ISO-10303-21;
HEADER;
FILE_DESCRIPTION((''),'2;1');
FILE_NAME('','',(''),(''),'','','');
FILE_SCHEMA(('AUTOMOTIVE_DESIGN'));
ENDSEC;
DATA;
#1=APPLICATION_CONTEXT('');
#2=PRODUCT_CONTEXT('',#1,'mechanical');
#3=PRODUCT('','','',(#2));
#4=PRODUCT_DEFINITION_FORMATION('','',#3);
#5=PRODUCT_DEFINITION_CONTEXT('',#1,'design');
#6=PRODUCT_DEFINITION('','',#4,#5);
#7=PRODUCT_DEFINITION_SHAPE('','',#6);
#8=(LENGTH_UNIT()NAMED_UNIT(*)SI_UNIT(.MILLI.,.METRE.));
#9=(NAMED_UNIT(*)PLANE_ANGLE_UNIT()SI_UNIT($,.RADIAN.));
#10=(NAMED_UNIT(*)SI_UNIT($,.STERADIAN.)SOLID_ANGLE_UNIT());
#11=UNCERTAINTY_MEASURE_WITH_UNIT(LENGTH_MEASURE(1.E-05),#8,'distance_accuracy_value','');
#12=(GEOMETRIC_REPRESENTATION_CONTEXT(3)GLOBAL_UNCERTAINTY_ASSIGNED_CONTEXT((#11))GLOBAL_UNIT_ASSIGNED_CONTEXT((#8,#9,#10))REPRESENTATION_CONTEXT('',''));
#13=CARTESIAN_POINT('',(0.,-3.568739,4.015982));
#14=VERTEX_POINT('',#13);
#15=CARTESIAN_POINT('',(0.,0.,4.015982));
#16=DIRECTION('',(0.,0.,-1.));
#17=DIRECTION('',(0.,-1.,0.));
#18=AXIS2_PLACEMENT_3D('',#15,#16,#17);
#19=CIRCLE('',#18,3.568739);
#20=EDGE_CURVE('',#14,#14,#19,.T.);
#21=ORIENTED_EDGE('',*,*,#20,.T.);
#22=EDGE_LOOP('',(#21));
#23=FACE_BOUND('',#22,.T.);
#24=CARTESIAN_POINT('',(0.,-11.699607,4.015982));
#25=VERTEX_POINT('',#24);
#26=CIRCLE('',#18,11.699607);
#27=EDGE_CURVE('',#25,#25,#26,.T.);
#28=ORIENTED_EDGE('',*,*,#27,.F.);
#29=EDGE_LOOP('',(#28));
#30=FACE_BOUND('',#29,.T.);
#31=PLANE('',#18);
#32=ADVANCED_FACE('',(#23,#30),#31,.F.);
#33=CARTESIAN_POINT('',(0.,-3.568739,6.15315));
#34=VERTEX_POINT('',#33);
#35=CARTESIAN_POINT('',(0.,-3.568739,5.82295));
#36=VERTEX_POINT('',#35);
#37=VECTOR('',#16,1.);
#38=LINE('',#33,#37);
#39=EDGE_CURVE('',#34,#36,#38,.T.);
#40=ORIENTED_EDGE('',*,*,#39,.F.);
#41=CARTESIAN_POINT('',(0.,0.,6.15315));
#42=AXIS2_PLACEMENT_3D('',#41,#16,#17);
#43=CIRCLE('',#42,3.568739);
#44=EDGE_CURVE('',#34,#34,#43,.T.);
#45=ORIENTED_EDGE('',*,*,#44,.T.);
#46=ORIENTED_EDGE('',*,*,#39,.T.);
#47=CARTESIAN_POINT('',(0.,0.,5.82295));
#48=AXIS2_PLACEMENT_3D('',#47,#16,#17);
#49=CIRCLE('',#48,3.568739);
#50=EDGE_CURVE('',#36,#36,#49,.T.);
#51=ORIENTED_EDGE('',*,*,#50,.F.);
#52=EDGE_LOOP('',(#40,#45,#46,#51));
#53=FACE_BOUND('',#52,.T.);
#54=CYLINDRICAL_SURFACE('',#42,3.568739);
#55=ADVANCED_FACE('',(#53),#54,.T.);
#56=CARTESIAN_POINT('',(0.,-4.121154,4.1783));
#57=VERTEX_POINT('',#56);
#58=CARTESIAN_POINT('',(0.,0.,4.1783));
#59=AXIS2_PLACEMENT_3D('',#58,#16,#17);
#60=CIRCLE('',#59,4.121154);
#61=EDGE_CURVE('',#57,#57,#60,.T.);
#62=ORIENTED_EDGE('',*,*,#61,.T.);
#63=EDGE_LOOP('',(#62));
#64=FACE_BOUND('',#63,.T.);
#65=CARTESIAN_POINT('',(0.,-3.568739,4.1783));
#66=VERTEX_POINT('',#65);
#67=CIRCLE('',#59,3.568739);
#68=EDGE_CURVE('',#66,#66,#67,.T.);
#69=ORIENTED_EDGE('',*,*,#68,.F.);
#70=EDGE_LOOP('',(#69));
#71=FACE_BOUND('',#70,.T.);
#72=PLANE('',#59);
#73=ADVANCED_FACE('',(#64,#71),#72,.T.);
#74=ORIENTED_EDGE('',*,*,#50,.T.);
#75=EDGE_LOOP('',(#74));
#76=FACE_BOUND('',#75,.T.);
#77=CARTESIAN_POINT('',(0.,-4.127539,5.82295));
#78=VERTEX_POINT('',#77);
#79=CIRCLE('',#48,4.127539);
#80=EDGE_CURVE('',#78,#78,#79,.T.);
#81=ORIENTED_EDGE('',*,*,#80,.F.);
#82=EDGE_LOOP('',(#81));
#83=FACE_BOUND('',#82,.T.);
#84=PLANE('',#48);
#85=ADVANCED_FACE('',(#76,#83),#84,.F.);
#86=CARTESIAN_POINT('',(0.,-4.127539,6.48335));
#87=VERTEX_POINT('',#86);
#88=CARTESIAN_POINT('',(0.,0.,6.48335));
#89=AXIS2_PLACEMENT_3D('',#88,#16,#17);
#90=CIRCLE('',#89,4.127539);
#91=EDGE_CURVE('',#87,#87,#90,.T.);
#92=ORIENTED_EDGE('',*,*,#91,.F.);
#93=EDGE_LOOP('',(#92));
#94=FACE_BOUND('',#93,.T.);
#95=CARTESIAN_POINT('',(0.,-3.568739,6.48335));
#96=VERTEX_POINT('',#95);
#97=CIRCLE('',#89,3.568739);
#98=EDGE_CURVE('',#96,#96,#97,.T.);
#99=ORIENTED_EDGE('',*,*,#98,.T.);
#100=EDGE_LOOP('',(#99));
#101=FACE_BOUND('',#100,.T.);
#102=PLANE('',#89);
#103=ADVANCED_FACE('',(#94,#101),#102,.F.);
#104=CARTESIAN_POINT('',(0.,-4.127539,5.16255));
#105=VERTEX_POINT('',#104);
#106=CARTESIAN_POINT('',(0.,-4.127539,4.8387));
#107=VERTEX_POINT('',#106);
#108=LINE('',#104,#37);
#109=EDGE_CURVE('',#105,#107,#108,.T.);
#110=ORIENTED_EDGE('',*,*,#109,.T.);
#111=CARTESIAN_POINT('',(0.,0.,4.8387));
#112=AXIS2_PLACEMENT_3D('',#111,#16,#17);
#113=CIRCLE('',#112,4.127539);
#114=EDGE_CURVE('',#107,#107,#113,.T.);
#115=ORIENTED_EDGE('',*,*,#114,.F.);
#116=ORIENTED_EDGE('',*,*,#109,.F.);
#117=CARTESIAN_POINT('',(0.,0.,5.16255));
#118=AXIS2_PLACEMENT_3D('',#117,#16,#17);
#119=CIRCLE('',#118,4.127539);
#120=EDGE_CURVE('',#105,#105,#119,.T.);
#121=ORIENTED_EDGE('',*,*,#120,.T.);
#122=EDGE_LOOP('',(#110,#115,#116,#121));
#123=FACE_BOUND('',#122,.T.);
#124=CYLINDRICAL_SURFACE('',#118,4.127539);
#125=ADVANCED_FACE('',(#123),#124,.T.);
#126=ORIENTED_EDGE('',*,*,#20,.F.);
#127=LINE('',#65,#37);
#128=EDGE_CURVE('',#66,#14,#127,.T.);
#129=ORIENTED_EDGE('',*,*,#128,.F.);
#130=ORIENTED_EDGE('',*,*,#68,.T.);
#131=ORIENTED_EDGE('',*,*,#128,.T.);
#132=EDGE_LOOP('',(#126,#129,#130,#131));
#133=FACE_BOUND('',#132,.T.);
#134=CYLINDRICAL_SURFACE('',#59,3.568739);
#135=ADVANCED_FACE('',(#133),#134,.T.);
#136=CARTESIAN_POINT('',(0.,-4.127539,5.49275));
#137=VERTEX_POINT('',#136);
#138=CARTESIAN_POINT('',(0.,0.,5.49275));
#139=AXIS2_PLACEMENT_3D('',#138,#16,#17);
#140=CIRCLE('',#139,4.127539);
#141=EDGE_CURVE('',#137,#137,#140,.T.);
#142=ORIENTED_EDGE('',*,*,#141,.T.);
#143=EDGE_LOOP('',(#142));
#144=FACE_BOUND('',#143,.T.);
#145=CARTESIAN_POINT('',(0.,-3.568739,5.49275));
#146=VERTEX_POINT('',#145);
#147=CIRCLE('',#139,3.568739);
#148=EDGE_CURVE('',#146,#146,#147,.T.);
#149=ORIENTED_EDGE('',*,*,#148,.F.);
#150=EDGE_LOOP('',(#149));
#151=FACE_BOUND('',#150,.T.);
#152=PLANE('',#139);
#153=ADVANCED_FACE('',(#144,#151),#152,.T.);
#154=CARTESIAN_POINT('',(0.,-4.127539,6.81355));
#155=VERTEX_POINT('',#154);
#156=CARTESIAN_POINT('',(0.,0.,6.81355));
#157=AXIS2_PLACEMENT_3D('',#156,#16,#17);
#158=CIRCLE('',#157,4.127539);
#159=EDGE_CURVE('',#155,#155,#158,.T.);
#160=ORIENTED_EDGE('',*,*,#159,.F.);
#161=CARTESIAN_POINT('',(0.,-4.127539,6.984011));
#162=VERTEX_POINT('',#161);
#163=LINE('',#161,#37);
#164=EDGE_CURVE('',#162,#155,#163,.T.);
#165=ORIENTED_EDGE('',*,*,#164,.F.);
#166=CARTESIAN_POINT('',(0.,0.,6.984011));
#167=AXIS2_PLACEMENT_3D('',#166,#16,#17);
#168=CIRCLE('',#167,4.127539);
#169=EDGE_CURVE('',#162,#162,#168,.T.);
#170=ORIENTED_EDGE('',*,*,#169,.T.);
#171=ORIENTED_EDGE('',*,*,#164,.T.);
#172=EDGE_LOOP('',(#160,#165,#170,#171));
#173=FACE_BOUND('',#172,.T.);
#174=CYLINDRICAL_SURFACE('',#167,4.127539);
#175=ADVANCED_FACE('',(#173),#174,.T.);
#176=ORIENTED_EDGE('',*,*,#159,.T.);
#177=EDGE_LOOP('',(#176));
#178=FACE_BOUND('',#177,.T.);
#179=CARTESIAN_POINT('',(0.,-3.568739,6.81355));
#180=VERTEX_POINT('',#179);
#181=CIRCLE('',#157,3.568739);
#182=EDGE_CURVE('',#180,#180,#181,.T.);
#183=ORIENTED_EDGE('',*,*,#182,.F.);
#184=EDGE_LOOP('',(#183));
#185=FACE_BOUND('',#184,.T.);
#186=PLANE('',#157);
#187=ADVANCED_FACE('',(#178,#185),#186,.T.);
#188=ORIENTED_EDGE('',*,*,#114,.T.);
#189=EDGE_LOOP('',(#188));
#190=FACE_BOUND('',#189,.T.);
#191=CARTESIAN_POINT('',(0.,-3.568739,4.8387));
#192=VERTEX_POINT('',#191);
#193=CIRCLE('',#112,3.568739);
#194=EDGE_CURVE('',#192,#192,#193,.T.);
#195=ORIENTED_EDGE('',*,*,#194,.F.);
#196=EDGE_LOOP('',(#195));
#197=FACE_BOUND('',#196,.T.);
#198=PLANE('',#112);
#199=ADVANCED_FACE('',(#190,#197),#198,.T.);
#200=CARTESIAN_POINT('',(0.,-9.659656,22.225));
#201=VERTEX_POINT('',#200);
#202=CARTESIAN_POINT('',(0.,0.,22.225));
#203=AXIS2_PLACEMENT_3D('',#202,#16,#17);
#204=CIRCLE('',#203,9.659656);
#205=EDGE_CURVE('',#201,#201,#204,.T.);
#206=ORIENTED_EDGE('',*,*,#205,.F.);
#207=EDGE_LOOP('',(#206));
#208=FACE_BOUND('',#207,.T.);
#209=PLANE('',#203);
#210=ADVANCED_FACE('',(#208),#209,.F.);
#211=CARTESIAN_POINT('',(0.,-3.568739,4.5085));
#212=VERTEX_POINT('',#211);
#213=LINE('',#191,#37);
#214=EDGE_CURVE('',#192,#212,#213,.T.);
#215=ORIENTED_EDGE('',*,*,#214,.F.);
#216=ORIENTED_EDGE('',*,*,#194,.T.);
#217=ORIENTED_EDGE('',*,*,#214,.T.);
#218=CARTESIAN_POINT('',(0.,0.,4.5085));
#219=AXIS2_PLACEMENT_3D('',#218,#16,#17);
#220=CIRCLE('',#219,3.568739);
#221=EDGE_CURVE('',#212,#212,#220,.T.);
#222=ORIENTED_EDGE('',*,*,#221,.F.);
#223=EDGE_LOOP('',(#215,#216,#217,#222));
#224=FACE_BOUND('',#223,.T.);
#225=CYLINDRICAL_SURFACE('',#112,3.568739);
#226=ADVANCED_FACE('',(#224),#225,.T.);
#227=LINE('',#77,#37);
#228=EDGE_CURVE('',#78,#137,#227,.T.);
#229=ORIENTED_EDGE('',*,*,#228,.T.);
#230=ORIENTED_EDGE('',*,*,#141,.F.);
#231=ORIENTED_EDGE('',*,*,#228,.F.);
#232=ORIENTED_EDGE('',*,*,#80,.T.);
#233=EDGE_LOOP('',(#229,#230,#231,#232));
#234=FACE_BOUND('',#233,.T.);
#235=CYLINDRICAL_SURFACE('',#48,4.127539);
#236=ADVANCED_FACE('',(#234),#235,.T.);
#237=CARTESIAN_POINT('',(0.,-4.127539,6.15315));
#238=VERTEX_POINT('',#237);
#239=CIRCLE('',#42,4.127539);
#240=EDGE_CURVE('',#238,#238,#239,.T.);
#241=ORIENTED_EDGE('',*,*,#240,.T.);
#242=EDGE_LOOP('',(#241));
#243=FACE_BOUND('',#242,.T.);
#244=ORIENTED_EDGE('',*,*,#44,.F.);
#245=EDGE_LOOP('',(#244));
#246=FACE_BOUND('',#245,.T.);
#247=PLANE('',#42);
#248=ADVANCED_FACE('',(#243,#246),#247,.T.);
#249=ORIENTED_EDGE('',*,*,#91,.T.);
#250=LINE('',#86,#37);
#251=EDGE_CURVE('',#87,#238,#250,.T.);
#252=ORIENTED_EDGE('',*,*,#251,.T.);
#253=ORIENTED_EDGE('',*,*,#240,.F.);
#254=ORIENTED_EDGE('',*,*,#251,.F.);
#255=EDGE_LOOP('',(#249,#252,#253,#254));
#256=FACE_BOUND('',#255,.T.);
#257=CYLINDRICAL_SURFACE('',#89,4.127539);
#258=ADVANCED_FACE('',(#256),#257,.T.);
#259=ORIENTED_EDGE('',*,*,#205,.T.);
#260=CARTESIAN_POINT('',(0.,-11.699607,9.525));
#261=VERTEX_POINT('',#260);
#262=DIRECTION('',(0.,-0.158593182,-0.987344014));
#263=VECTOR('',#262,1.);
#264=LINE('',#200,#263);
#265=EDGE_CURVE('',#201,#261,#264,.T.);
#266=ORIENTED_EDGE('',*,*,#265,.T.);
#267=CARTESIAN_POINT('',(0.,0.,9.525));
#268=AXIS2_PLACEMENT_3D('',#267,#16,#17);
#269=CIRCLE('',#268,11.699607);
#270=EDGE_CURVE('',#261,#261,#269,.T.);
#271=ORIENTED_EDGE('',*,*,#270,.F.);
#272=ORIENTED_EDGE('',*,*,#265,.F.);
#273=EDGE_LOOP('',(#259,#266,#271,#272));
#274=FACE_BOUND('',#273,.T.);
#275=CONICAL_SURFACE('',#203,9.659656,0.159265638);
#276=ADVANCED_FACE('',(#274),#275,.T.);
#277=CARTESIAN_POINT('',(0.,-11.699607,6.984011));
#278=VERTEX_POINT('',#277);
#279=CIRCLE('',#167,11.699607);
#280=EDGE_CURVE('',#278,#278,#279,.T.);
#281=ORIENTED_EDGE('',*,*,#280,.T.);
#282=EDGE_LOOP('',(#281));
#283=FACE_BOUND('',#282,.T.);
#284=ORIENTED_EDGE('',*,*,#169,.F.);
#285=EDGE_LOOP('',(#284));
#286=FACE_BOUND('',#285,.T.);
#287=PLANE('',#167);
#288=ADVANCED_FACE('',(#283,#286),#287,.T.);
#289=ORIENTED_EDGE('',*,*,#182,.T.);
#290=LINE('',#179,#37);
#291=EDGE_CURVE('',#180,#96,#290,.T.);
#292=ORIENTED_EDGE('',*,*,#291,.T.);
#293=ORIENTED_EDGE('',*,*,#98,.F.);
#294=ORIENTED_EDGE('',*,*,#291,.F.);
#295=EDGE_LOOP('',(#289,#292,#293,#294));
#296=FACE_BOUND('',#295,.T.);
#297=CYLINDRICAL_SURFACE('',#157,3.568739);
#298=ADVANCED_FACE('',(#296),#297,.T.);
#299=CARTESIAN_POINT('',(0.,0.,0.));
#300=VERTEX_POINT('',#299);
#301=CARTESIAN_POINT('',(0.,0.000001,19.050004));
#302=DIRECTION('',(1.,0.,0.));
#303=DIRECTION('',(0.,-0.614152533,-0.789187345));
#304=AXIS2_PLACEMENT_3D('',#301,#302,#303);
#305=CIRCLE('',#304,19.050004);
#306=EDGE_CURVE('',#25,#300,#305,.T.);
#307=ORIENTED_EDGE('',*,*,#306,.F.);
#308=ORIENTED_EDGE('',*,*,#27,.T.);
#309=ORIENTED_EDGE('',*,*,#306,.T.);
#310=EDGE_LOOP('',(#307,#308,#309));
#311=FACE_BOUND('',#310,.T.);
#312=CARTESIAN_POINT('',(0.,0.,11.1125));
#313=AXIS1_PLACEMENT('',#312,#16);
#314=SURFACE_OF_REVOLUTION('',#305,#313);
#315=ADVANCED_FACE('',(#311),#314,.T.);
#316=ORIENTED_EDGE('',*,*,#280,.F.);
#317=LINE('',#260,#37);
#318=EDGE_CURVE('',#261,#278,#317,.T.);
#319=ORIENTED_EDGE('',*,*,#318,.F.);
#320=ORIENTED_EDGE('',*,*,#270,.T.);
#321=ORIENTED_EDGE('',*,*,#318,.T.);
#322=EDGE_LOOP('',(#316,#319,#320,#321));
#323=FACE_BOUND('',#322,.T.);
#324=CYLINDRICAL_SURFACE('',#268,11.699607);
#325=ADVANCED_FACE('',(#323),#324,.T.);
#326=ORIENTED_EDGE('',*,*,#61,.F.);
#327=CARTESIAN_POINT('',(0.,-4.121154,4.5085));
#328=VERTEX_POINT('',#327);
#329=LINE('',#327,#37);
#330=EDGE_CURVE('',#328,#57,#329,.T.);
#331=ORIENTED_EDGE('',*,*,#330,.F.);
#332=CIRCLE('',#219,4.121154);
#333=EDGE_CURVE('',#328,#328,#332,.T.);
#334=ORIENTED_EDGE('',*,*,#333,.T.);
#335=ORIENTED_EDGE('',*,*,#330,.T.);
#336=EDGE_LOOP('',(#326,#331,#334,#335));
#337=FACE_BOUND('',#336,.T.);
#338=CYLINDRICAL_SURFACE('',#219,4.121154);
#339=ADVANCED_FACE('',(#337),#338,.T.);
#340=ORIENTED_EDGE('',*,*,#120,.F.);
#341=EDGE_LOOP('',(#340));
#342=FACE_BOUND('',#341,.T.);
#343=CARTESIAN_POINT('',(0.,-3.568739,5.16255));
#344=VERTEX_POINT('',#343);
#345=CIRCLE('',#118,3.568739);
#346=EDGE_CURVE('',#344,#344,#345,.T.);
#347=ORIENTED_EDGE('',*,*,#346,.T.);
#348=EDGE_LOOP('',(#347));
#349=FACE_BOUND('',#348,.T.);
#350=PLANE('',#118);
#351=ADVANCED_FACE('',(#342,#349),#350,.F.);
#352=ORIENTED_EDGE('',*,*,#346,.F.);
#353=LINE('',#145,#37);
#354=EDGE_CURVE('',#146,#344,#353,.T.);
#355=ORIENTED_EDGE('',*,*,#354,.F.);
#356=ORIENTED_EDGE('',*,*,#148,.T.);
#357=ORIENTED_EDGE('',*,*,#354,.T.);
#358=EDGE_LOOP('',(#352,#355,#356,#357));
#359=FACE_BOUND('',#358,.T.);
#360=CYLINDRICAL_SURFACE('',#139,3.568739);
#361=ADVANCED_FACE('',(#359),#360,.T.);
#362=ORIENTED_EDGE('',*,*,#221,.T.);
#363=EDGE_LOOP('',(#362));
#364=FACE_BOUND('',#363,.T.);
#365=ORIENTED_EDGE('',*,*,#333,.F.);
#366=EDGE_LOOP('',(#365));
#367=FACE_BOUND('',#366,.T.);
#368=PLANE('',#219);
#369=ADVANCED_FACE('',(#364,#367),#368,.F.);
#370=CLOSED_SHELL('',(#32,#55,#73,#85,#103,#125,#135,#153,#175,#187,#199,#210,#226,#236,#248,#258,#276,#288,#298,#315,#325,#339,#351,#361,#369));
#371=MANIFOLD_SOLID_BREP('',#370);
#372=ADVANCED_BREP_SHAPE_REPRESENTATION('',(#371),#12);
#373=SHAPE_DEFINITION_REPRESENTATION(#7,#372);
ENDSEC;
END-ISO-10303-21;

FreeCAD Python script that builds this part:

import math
import FreeCAD as App
import Part
import Sketcher
from FreeCAD import Vector
Q = App.Units.Quantity

doc = App.newDocument("Part")
body = doc.addObject("PartDesign::Body", "Body")

# Sketch on YZ plane
sketch1 = body.newObject("Sketcher::SketchObject", "Sketch")
sketch1.AttachmentSupport = (doc.getObject("YZ_Plane"), [""])
sketch1.MapMode = "FlatFace"
sketch1.addGeometry(Part.ArcOfCircle(Part.Circle(Vector(0, 19.05, 0), Vector(0, 0, 1), 19.05), math.radians(-128), math.radians(-90)), False)
sketch1.addGeometry(Part.LineSegment(Vector(0, 0, 0), Vector(0, 22.23, 0)), False)
sketch1.addGeometry(Part.LineSegment(Vector(0, 22.23, 0), Vector(-9.66, 22.23, 0)), False)
sketch1.addGeometry(Part.LineSegment(Vector(-9.66, 22.23, 0), Vector(-11.7, 9.53, 0)), False)
sketch1.addGeometry(Part.LineSegment(Vector(-11.7, 9.53, 0), Vector(-11.7, 6.98, 0)), False)
sketch1.addGeometry(Part.LineSegment(Vector(-11.7, 6.98, 0), Vector(-4.13, 6.98, 0)), False)
sketch1.addGeometry(Part.LineSegment(Vector(-4.13, 6.98, 0), Vector(-4.13, 6.81, 0)), False)
sketch1.addGeometry(Part.LineSegment(Vector(-4.13, 6.81, 0), Vector(-3.57, 6.81, 0)), False)
sketch1.addGeometry(Part.LineSegment(Vector(-3.57, 6.81, 0), Vector(-3.57, 6.48, 0)), False)
sketch1.addGeometry(Part.LineSegment(Vector(-3.57, 6.48, 0), Vector(-4.13, 6.48, 0)), False)
sketch1.addGeometry(Part.LineSegment(Vector(-4.13, 6.48, 0), Vector(-4.13, 6.15, 0)), False)
sketch1.addGeometry(Part.LineSegment(Vector(-4.13, 6.15, 0), Vector(-3.57, 6.15, 0)), False)
sketch1.addGeometry(Part.LineSegment(Vector(-3.57, 6.15, 0), Vector(-3.57, 5.82, 0)), False)
sketch1.addGeometry(Part.LineSegment(Vector(-3.57, 5.82, 0), Vector(-4.13, 5.82, 0)), False)
sketch1.addGeometry(Part.LineSegment(Vector(-4.13, 5.82, 0), Vector(-4.13, 5.49, 0)), False)
sketch1.addGeometry(Part.LineSegment(Vector(-4.13, 5.49, 0), Vector(-3.57, 5.49, 0)), False)
sketch1.addGeometry(Part.LineSegment(Vector(-3.57, 5.49, 0), Vector(-3.57, 5.16, 0)), False)
sketch1.addGeometry(Part.LineSegment(Vector(-3.57, 5.16, 0), Vector(-4.13, 5.16, 0)), False)
sketch1.addGeometry(Part.LineSegment(Vector(-4.13, 5.16, 0), Vector(-4.13, 4.84, 0)), False)
sketch1.addGeometry(Part.LineSegment(Vector(-4.13, 4.84, 0), Vector(-3.57, 4.84, 0)), False)
sketch1.addGeometry(Part.LineSegment(Vector(-3.57, 4.84, 0), Vector(-3.57, 4.51, 0)), False)
sketch1.addGeometry(Part.LineSegment(Vector(-3.57, 4.51, 0), Vector(-4.12, 4.51, 0)), False)
sketch1.addGeometry(Part.LineSegment(Vector(-4.12, 4.51, 0), Vector(-4.12, 4.18, 0)), False)
sketch1.addGeometry(Part.LineSegment(Vector(-4.12, 4.18, 0), Vector(-3.57, 4.18, 0)), False)
sketch1.addGeometry(Part.LineSegment(Vector(-3.57, 4.18, 0), Vector(-3.57, 4.02, 0)), False)
sketch1.addGeometry(Part.LineSegment(Vector(-3.57, 4.02, 0), Vector(-11.7, 4.02, 0)), False)
sketch1.addConstraint(Sketcher.Constraint("Coincident", 0, 2, 1, 1))
sketch1.addConstraint(Sketcher.Constraint("Coincident", 1, 2, 2, 1))
sketch1.addConstraint(Sketcher.Constraint("Coincident", 2, 2, 3, 1))
sketch1.addConstraint(Sketcher.Constraint("Coincident", 3, 2, 4, 1))
sketch1.addConstraint(Sketcher.Constraint("Coincident", 4, 2, 5, 1))
sketch1.addConstraint(Sketcher.Constraint("Coincident", 5, 2, 6, 1))
sketch1.addConstraint(Sketcher.Constraint("Coincident", 6, 2, 7, 1))
sketch1.addConstraint(Sketcher.Constraint("Coincident", 7, 2, 8, 1))
sketch1.addConstraint(Sketcher.Constraint("Coincident", 8, 2, 9, 1))
sketch1.addConstraint(Sketcher.Constraint("Coincident", 9, 2, 10, 1))
sketch1.addConstraint(Sketcher.Constraint("Coincident", 10, 2, 11, 1))
sketch1.addConstraint(Sketcher.Constraint("Coincident", 11, 2, 12, 1))
sketch1.addConstraint(Sketcher.Constraint("Coincident", 12, 2, 13, 1))
sketch1.addConstraint(Sketcher.Constraint("Coincident", 13, 2, 14, 1))
sketch1.addConstraint(Sketcher.Constraint("Coincident", 14, 2, 15, 1))
sketch1.addConstraint(Sketcher.Constraint("Coincident", 15, 2, 16, 1))
sketch1.addConstraint(Sketcher.Constraint("Coincident", 16, 2, 17, 1))
sketch1.addConstraint(Sketcher.Constraint("Coincident", 17, 2, 18, 1))
sketch1.addConstraint(Sketcher.Constraint("Coincident", 18, 2, 19, 1))
sketch1.addConstraint(Sketcher.Constraint("Coincident", 19, 2, 20, 1))
sketch1.addConstraint(Sketcher.Constraint("Coincident", 20, 2, 21, 1))
sketch1.addConstraint(Sketcher.Constraint("Coincident", 21, 2, 22, 1))
sketch1.addConstraint(Sketcher.Constraint("Coincident", 22, 2, 23, 1))
sketch1.addConstraint(Sketcher.Constraint("Coincident", 23, 2, 24, 1))
sketch1.addConstraint(Sketcher.Constraint("Coincident", 24, 2, 25, 1))
sketch1.addConstraint(Sketcher.Constraint("Coincident", 25, 2, 0, 1))
sketch1.addConstraint(Sketcher.Constraint("Vertical", 1))
sketch1.addConstraint(Sketcher.Constraint("Horizontal", 2))
sketch1.addConstraint(Sketcher.Constraint("Vertical", 4))
sketch1.addConstraint(Sketcher.Constraint("Horizontal", 5))
sketch1.addConstraint(Sketcher.Constraint("Vertical", 6))
sketch1.addConstraint(Sketcher.Constraint("Horizontal", 7))
sketch1.addConstraint(Sketcher.Constraint("Vertical", 8))
sketch1.addConstraint(Sketcher.Constraint("Horizontal", 9))
sketch1.addConstraint(Sketcher.Constraint("Vertical", 10))
sketch1.addConstraint(Sketcher.Constraint("Horizontal", 11))
sketch1.addConstraint(Sketcher.Constraint("Vertical", 12))
sketch1.addConstraint(Sketcher.Constraint("Horizontal", 13))
sketch1.addConstraint(Sketcher.Constraint("Vertical", 14))
sketch1.addConstraint(Sketcher.Constraint("Horizontal", 15))
sketch1.addConstraint(Sketcher.Constraint("Vertical", 16))
sketch1.addConstraint(Sketcher.Constraint("Horizontal", 17))
sketch1.addConstraint(Sketcher.Constraint("Vertical", 18))
sketch1.addConstraint(Sketcher.Constraint("Horizontal", 19))
sketch1.addConstraint(Sketcher.Constraint("Vertical", 20))
sketch1.addConstraint(Sketcher.Constraint("Horizontal", 21))
sketch1.addConstraint(Sketcher.Constraint("Vertical", 22))
sketch1.addConstraint(Sketcher.Constraint("Horizontal", 23))
sketch1.addConstraint(Sketcher.Constraint("Vertical", 24))
sketch1.addConstraint(Sketcher.Constraint("Horizontal", 25))
sketch1.addConstraint(Sketcher.Constraint("Coincident", 0, 2, -1, 1))
sketch1.addConstraint(Sketcher.Constraint("PointOnObject", 0, 3, -2))
sketch1.addConstraint(Sketcher.Constraint("Vertical", 6, 2, 9, 2))
sketch1.addConstraint(Sketcher.Constraint("Vertical", 8, 2, 11, 2))
sketch1.addConstraint(Sketcher.Constraint("Vertical", 10, 2, 13, 2))
sketch1.addConstraint(Sketcher.Constraint("Vertical", 12, 2, 15, 2))
sketch1.addConstraint(Sketcher.Constraint("Vertical", 14, 2, 17, 2))
sketch1.addConstraint(Sketcher.Constraint("Vertical", 16, 2, 19, 2))
sketch1.addConstraint(Sketcher.Constraint("Vertical", 20, 2, 23, 2))
sketch1.addConstraint(Sketcher.Constraint("Vertical", 4, 2, 25, 2))
sketch1.addConstraint(Sketcher.Constraint("Equal", 8, 10))
sketch1.addConstraint(Sketcher.Constraint("Equal", 10, 12))
sketch1.addConstraint(Sketcher.Constraint("Equal", 12, 14))
sketch1.addConstraint(Sketcher.Constraint("Equal", 14, 16))
sketch1.addConstraint(Sketcher.Constraint("Equal", 16, 20))
sketch1.addConstraint(Sketcher.Constraint("Equal", 20, 22))
sketch1.addConstraint(Sketcher.Constraint("Radius", 0, Q("0.7500002 in")))
sketch1.addConstraint(Sketcher.Constraint("DistanceY", 3, 2, 2, 2, Q("0.5 in")))
sketch1.addConstraint(Sketcher.Constraint("DistanceX", 7, 1, 7, 2, Q("0.022 in")))
sketch1.addConstraint(Sketcher.Constraint("DistanceY", 1, 1, 1, 2, Q("0.875 in")))
sketch1.addConstraint(Sketcher.Constraint("DistanceY", 8, 2, 8, 1, Q("0.013 in")))
sketch1.addConstraint(Sketcher.Constraint("DistanceY", -1, 1, 18, 2, Q("0.1905 in")))
sketch1.addConstraint(Sketcher.Constraint("DistanceX", 5, 1, 5, 2, Q("7.572068 mm")))
sketch1.addConstraint(Sketcher.Constraint("DistanceY", 4, 2, 4, 1, Q("2.540989 mm")))
sketch1.addConstraint(Sketcher.Constraint("DistanceY", 6, 2, 6, 1, Q("0.170461 mm")))
sketch1.addConstraint(Sketcher.Constraint("Distance", 3, Q("12.862791 mm")))
sketch1.addConstraint(Sketcher.Constraint("DistanceX", 2, 2, 2, 1, Q("9.659656 mm")))
sketch1.addConstraint(Sketcher.Constraint("DistanceX", 21, 2, 21, 1, Q("0.552415 mm")))
revolution = body.newObject("PartDesign::Revolution", "Revolution")
revolution.Profile = sketch1
revolution.ReferenceAxis = (sketch1, ["V_Axis"])
revolution.Angle = 360

doc.recompute()
